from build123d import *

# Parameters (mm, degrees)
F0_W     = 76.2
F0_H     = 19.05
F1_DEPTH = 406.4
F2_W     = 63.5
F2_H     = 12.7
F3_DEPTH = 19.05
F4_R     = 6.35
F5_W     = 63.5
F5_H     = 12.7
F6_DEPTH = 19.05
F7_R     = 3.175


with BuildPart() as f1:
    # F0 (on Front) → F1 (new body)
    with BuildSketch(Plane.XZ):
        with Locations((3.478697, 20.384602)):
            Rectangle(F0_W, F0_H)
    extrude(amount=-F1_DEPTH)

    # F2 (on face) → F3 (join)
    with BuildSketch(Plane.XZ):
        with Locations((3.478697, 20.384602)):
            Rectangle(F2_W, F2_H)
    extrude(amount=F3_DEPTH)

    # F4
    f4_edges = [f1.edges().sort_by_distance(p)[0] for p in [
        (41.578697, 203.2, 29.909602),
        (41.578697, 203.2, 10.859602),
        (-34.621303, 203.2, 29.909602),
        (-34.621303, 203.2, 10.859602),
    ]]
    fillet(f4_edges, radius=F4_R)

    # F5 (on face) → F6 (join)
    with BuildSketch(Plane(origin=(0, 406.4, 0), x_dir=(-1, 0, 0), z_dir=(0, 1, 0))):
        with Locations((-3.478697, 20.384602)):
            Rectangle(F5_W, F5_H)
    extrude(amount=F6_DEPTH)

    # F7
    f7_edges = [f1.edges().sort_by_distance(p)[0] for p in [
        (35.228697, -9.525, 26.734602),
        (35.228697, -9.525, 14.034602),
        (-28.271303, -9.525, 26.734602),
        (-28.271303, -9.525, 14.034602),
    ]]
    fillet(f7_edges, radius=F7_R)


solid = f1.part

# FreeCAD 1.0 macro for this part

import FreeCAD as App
import Part
import Sketcher
from FreeCAD import Vector
Q = App.Units.Quantity


def edges_at(feature, points):
    """Names of the edges that pass closest to the given points."""
    edges = feature.Shape.Edges
    near = lambda p: min(range(len(edges)), key=lambda i: edges[i].distToShape(Part.Vertex(*p))[0])
    return sorted({f"Edge{near(p) + 1}" for p in points})


def add_polygon(sketch, points):
    """Adds a closed chain of lines whose ends are joined by coincident constraints."""
    first, n = sketch.GeometryCount, len(points)
    for a, b in zip(points, points[1:] + points[:1]):
        sketch.addGeometry(Part.LineSegment(App.Vector(*a, 0), App.Vector(*b, 0)), False)
    for i in range(n):
        sketch.addConstraint(Sketcher.Constraint("Coincident", first + i, 2, first + (i + 1) % n, 1))

doc = App.newDocument("Part")
params = doc.addObject("Spreadsheet::Sheet", "Params")
for row, (alias, value) in enumerate([
    ("sketch1_width", "3 in"),
    ("sketch1_height", "0.75 in"),
    ("pad1_length", "16 in"),
    ("sketch2_width", "2.5 in"),
    ("sketch2_height", "0.5 in"),
    ("pad2_length", "0.75 in"),
    ("fillet_radius", "0.25 in"),
    ("sketch3_width", "2.5 in"),
    ("sketch3_height", "0.5 in"),
    ("pad3_length", "0.75 in"),
    ("fillet2_radius", "0.125 in"),
], start=1):
    params.set(f"A{row}", alias)
    params.set(f"B{row}", "=" + value)
    params.setAlias(f"B{row}", alias)

body = doc.addObject("PartDesign::Body", "Body")

# Sketch on XZ plane
sketch1 = body.newObject("Sketcher::SketchObject", "Sketch")
sketch1.AttachmentSupport = (doc.getObject("XZ_Plane"), [""])
sketch1.MapMode = "FlatFace"
add_polygon(sketch1, [(-35, 30), (-35, 11), (42, 11), (42, 30)])  # lines 0-3
sketch1.addConstraint([
    Sketcher.Constraint("Vertical", 0),
    Sketcher.Constraint("Horizontal", 1),
    Sketcher.Constraint("Vertical", 2),
    Sketcher.Constraint("Horizontal", 3),
    Sketcher.Constraint("DistanceX", 1, 1, 1, 2, Q("3 in")),
    Sketcher.Constraint("DistanceY", 0, 2, 0, 1, Q("0.75 in")),
    Sketcher.Constraint("DistanceY", -1, 1, 2, 2, 29.909602),
    Sketcher.Constraint("DistanceX", 0, 2, -1, 1, 34.621303),
])
sketch1.setExpression("Constraints[8]", "Params.sketch1_width")
sketch1.setExpression("Constraints[9]", "Params.sketch1_height")
pad1 = body.newObject("PartDesign::Pad", "Pad")
pad1.Profile = sketch1
pad1.setExpression("Length", "Params.pad1_length")
pad1.Reversed = True

# Sketch on XZ plane
sketch2 = body.newObject("Sketcher::SketchObject", "Sketch001")
sketch2.AttachmentSupport = (doc.getObject("XZ_Plane"), [""])
sketch2.MapMode = "FlatFace"
add_polygon(sketch2, [(-28, 27), (-28, 14), (35, 14), (35, 27)])  # lines 0-3
sketch2.addConstraint([
    Sketcher.Constraint("Vertical", 0),
    Sketcher.Constraint("Horizontal", 1),
    Sketcher.Constraint("Vertical", 2),
    Sketcher.Constraint("Horizontal", 3),
    Sketcher.Constraint("DistanceX", 1, 1, 1, 2, Q("2.5 in")),
    Sketcher.Constraint("DistanceY", 0, 2, 0, 1, Q("0.5 in")),
    Sketcher.Constraint("DistanceY", -1, 1, 2, 2, 26.734602),
    Sketcher.Constraint("DistanceX", 0, 2, -1, 1, 28.271303),
])
sketch2.setExpression("Constraints[8]", "Params.sketch2_width")
sketch2.setExpression("Constraints[9]", "Params.sketch2_height")
pad2 = body.newObject("PartDesign::Pad", "Pad001")
pad2.Profile = sketch2
pad2.setExpression("Length", "Params.pad2_length")
doc.recompute()

fillet = body.newObject("PartDesign::Fillet", "Fillet")
fillet.Base = (pad2, edges_at(pad2, [
    (41.579, 203.2, 29.91),
    (41.579, 203.2, 10.86),
    (-34.621, 203.2, 29.91),
    (-34.621, 203.2, 10.86),
]))
fillet.setExpression("Radius", "Params.fillet_radius")

# Sketch on XZ plane
sketch3 = body.newObject("Sketcher::SketchObject", "Sketch002")
sketch3.AttachmentSupport = (doc.getObject("XZ_Plane"), [""])
sketch3.MapMode = "FlatFace"
sketch3.AttachmentOffset = App.Placement(Vector(0, 0, -16 * 25.4), App.Rotation())
add_polygon(sketch3, [(35, 27), (35, 14), (-28, 14), (-28, 27)])  # lines 0-3
sketch3.addConstraint([
    Sketcher.Constraint("Vertical", 0),
    Sketcher.Constraint("Horizontal", 1),
    Sketcher.Constraint("Vertical", 2),
    Sketcher.Constraint("Horizontal", 3),
    Sketcher.Constraint("DistanceX", 1, 2, 1, 1, Q("2.5 in")),
    Sketcher.Constraint("DistanceY", 0, 2, 0, 1, Q("0.5 in")),
    Sketcher.Constraint("DistanceY", -1, 1, 2, 2, 26.734602),
    Sketcher.Constraint("DistanceX", -1, 1, 0, 2, 35.228697),
])
sketch3.setExpression("Constraints[8]", "Params.sketch3_width")
sketch3.setExpression("Constraints[9]", "Params.sketch3_height")
pad3 = body.newObject("PartDesign::Pad", "Pad002")
pad3.Profile = sketch3
pad3.setExpression("Length", "Params.pad3_length")
pad3.Reversed = True
doc.recompute()

fillet2 = body.newObject("PartDesign::Fillet", "Fillet001")
fillet2.Base = (pad3, edges_at(pad3, [
    (35.229, -9.525, 26.735),
    (35.229, -9.525, 14.035),
    (-28.271, -9.525, 26.735),
    (-28.271, -9.525, 14.035),
]))
fillet2.setExpression("Radius", "Params.fillet2_radius")

doc.recompute()
